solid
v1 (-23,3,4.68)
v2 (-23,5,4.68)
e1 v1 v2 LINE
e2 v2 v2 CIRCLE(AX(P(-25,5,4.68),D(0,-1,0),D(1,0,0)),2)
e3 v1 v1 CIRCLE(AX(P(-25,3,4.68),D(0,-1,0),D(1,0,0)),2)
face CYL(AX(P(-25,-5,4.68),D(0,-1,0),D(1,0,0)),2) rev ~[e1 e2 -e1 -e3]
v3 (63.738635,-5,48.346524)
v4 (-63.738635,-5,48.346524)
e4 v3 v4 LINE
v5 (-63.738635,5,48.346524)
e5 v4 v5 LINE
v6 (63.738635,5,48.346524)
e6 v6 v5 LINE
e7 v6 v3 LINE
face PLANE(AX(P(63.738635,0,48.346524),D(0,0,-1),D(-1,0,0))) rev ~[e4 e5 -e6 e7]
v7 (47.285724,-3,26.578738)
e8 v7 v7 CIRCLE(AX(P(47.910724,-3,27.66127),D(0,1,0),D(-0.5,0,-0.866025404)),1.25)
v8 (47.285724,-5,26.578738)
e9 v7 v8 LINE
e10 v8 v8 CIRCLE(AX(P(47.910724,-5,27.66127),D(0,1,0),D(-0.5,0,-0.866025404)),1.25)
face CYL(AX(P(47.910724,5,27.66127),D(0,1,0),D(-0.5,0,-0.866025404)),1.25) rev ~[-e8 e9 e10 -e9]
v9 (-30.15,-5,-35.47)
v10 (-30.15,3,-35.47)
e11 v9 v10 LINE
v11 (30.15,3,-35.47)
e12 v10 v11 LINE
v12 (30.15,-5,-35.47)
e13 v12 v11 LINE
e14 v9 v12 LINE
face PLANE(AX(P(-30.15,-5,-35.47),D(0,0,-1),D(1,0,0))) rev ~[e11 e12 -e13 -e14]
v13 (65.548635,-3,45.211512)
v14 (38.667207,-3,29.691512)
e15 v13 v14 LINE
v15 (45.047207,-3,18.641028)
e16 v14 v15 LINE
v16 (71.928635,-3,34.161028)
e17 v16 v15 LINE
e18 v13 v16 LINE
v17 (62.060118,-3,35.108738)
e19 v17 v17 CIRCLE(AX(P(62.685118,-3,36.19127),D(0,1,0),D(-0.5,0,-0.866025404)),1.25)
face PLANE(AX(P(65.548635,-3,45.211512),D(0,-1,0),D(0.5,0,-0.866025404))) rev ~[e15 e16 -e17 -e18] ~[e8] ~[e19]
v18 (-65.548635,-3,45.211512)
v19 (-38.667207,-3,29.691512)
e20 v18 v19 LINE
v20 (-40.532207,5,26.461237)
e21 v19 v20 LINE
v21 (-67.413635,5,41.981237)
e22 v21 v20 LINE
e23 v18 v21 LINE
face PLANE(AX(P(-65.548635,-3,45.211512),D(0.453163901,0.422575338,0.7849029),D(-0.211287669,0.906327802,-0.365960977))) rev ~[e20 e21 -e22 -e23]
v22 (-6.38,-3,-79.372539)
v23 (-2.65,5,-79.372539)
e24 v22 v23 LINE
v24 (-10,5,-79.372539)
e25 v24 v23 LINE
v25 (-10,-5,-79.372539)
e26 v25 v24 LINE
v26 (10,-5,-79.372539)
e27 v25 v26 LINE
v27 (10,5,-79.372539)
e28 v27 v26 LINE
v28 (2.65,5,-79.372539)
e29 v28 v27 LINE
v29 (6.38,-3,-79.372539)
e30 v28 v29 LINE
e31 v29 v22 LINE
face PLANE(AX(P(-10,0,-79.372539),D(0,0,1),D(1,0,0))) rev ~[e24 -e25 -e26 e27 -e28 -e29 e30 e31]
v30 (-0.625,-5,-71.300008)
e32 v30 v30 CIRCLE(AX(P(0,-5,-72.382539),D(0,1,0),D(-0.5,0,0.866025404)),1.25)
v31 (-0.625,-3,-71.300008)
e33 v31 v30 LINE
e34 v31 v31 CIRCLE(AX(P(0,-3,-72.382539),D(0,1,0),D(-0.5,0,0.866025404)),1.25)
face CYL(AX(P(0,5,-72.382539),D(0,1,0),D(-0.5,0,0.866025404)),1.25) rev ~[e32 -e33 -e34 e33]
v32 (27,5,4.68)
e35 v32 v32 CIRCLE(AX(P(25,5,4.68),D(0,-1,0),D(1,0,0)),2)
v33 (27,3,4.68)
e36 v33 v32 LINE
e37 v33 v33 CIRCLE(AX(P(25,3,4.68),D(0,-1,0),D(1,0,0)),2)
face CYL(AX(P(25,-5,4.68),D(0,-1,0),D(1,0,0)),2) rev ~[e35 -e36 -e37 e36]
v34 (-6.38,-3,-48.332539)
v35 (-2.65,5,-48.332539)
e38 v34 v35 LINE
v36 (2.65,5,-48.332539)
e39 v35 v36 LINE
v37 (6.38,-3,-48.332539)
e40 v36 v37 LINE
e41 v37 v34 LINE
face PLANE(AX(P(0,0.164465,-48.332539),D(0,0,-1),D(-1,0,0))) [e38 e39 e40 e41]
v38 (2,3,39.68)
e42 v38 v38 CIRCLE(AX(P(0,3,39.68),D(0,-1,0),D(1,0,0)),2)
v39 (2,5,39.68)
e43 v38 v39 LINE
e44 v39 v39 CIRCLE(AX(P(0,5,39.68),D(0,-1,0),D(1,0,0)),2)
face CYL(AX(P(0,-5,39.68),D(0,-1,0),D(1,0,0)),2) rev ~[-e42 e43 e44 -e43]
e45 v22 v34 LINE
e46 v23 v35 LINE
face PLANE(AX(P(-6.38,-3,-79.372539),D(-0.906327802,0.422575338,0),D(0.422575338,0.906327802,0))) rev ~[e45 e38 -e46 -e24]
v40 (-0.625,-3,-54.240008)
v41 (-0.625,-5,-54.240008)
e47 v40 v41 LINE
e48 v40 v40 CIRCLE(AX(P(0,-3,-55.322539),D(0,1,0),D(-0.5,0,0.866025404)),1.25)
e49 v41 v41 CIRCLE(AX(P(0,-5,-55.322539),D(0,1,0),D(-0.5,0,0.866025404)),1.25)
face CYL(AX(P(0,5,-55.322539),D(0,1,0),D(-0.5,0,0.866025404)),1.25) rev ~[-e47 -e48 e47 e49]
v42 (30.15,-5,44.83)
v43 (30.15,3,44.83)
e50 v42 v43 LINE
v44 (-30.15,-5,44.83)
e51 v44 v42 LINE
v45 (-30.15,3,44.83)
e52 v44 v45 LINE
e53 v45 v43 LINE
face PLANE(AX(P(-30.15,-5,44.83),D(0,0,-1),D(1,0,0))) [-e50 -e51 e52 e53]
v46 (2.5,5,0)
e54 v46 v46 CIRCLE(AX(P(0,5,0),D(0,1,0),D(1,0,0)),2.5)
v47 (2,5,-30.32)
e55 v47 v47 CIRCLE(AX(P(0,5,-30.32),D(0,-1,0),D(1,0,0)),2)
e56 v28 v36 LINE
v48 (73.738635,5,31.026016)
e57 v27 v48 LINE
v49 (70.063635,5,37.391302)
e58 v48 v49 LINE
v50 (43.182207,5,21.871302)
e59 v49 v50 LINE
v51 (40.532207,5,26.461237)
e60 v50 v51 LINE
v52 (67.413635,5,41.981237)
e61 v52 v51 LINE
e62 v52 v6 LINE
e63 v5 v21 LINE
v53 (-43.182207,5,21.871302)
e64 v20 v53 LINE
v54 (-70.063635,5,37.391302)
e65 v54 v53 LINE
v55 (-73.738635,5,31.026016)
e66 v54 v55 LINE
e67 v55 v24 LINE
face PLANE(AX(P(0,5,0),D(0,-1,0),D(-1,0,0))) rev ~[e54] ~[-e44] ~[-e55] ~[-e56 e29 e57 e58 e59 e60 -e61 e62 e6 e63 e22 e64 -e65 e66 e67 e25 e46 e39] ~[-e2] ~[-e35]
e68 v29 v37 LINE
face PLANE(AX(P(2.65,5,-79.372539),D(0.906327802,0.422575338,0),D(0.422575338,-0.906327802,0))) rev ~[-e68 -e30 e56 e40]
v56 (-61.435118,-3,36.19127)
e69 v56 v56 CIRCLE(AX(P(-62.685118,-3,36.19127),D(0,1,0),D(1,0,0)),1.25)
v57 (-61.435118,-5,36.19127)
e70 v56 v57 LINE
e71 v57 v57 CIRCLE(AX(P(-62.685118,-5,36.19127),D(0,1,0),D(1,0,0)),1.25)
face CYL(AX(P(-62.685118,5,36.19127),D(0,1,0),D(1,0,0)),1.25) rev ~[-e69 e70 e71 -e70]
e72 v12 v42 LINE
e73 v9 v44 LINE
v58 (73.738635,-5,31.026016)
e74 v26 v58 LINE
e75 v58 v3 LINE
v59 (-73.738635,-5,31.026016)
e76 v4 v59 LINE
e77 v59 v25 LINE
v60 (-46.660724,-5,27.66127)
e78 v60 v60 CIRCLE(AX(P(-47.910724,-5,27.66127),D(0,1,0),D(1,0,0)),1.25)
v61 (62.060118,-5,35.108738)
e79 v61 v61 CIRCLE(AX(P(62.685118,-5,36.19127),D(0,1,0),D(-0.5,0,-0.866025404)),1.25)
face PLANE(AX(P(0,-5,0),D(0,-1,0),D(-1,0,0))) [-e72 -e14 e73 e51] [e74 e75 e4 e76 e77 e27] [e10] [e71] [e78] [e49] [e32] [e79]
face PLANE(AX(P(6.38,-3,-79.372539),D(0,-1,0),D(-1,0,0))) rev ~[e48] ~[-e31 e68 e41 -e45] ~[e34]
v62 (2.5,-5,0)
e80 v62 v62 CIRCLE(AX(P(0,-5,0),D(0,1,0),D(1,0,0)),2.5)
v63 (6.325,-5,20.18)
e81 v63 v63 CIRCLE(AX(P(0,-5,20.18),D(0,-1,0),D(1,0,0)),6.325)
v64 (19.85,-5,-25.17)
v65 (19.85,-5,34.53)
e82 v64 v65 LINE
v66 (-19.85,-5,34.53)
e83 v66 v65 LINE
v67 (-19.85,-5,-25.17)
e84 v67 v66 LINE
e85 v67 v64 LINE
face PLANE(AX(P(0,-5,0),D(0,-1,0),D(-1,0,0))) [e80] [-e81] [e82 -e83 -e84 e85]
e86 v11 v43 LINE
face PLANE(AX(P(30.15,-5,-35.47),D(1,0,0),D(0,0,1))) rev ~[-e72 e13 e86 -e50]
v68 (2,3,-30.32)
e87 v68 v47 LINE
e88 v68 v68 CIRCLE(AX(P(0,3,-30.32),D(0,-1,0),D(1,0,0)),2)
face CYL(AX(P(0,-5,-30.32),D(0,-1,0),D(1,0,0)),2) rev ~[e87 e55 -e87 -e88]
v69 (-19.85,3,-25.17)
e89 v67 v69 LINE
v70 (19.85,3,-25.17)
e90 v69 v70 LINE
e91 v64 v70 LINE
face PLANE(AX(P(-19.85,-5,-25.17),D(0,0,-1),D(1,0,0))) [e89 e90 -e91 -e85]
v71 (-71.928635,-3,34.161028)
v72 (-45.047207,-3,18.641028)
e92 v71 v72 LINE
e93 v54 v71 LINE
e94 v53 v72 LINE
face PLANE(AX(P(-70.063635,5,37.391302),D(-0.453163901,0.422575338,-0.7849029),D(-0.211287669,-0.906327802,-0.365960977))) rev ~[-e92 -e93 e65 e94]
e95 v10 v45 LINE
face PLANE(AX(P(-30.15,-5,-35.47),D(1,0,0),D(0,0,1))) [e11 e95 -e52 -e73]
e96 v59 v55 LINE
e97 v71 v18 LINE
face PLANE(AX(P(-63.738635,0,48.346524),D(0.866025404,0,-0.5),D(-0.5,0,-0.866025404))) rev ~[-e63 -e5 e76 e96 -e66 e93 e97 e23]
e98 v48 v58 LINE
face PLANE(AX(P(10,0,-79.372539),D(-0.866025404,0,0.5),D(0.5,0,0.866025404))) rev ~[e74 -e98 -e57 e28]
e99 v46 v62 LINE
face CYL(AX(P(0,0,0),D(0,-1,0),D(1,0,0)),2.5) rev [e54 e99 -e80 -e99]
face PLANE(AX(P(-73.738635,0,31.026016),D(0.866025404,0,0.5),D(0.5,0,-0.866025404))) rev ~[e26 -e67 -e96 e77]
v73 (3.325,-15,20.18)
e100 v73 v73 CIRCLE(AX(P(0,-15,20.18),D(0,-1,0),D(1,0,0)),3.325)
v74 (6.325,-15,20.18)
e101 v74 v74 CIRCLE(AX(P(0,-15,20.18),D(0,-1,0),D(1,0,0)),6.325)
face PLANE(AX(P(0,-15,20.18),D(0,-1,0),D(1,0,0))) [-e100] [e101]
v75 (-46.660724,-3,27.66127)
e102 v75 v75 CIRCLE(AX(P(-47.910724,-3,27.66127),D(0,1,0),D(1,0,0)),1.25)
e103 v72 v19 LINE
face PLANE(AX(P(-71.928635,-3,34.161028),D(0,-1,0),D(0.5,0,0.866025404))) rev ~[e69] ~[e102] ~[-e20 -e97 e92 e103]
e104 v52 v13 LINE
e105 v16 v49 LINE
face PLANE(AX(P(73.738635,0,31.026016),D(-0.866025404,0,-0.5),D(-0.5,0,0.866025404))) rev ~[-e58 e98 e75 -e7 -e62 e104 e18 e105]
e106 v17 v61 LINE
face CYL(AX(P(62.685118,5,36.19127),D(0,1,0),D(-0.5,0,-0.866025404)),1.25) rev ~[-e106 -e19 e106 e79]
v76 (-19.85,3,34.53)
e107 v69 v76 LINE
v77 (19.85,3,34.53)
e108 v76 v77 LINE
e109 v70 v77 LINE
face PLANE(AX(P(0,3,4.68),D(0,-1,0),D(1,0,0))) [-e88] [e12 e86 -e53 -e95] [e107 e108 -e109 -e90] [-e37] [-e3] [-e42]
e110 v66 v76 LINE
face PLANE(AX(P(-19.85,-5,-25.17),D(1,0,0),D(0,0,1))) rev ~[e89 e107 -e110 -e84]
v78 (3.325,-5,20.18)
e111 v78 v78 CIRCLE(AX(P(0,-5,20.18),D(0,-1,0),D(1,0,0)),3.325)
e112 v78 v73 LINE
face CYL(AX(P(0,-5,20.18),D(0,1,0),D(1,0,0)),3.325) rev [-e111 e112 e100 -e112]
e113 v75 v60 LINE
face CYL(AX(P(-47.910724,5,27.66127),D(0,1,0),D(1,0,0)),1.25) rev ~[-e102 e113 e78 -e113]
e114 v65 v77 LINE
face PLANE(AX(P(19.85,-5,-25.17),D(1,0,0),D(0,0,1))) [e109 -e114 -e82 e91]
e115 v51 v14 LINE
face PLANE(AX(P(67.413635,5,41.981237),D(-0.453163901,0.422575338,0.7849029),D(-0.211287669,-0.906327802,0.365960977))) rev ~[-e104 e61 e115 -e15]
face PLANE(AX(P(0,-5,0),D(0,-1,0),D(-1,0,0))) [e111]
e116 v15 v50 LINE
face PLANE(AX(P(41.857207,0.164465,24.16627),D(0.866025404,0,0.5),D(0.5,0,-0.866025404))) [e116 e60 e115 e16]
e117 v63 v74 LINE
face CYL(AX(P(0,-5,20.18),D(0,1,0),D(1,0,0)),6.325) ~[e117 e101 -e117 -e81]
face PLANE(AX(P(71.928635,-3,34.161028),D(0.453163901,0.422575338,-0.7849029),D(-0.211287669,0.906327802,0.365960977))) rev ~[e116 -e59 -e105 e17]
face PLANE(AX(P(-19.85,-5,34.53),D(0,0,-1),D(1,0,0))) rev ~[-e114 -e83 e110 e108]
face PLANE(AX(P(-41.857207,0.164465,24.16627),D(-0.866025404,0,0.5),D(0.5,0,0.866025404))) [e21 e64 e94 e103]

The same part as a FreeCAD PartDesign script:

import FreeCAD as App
import Part
import Sketcher
from FreeCAD import Vector
Q = App.Units.Quantity

doc = App.newDocument("Part")
body = doc.addObject("PartDesign::Body", "Body")

# Sketch on XZ plane
sketch1 = doc.addObject("Sketcher::SketchObject", "Sketch")
body.addObject(sketch1)
sketch1.AttachmentSupport = (doc.XZ_Plane, [""])
sketch1.MapMode = "FlatFace"
sketch1.addGeometry(Part.LineSegment(Vector(10, -79.4, 0), Vector(-10, -79.4, 0)), False)
sketch1.addGeometry(Part.LineSegment(Vector(-10, -79.4, 0), Vector(-73.7, 31, 0)), False)
sketch1.addGeometry(Part.LineSegment(Vector(-73.7, 31, 0), Vector(-63.7, 48.3, 0)), False)
sketch1.addGeometry(Part.LineSegment(Vector(-63.7, 48.3, 0), Vector(63.7, 48.3, 0)), False)
sketch1.addGeometry(Part.LineSegment(Vector(63.7, 48.3, 0), Vector(73.7, 31, 0)), False)
sketch1.addGeometry(Part.LineSegment(Vector(73.7, 31, 0), Vector(10, -79.4, 0)), False)
sketch1.addGeometry(Part.Circle(Vector(0, 0, 0), Vector(0, 0, 1), 2.5), False)
sketch1.addConstraint(Sketcher.Constraint("Coincident", 0, 2, 1, 1))
sketch1.addConstraint(Sketcher.Constraint("Coincident", 1, 2, 2, 1))
sketch1.addConstraint(Sketcher.Constraint("Coincident", 2, 2, 3, 1))
sketch1.addConstraint(Sketcher.Constraint("Coincident", 3, 2, 4, 1))
sketch1.addConstraint(Sketcher.Constraint("Coincident", 4, 2, 5, 1))
sketch1.addConstraint(Sketcher.Constraint("Coincident", 5, 2, 0, 1))
sketch1.addConstraint(Sketcher.Constraint("Horizontal", 0))
sketch1.addConstraint(Sketcher.Constraint("Horizontal", 3))
sketch1.addConstraint(Sketcher.Constraint("Coincident", 6, 3, -1, 1))
sketch1.addConstraint(Sketcher.Constraint("Symmetric", 1, 2, 4, 2, -2))
sketch1.addConstraint(Sketcher.Constraint("Parallel", 1, 4))
sketch1.addConstraint(Sketcher.Constraint("Parallel", 2, 5))
sketch1.addConstraint(Sketcher.Constraint("Equal", 2, 4))
sketch1.addConstraint(Sketcher.Constraint("Diameter", 6, 5.0))
sketch1.addConstraint(Sketcher.Constraint("DistanceX", 0, 2, 0, 1, 20.0))
sketch1.addConstraint(Sketcher.Constraint("Angle", 1, Q("120 deg")))
sketch1.addConstraint(Sketcher.Constraint("Distance", 2, 20.0))
sketch1.addConstraint(Sketcher.Constraint("DistanceX", 3, 1, 3, 2, 127.477271))
sketch1.addConstraint(Sketcher.Constraint("DistanceY", 0, 2, -1, 1, 79.372539))
pad1 = doc.addObject("PartDesign::Pad", "Pad")
body.addObject(pad1)
pad1.Profile = sketch1
pad1.Length = 10
pad1.Midplane = True

# Sketch on XZ plane
sketch2 = doc.addObject("Sketcher::SketchObject", "Sketch001")
body.addObject(sketch2)
sketch2.AttachmentSupport = (doc.XZ_Plane, [""])
sketch2.MapMode = "FlatFace"
sketch2.AttachmentOffset = App.Placement(Vector(0, 0, -5), App.Rotation())
sketch2.addGeometry(Part.Circle(Vector(-62.7, 36.2, 0), Vector(0, 0, 1), 1.2), False)
sketch2.addGeometry(Part.Circle(Vector(-47.9, 27.7, 0), Vector(0, 0, 1), 1.2), False)
sketch2.addConstraint(Sketcher.Constraint("Equal", 0, 1))
sketch2.addConstraint(Sketcher.Constraint("Diameter", 0, 2.5))
sketch2.addConstraint(Sketcher.Constraint("DistanceY", 1, 3, 0, 3, 8.53))
sketch2.addConstraint(Sketcher.Constraint("DistanceY", -1, 1, 0, 3, 36.19127))
sketch2.addConstraint(Sketcher.Constraint("DistanceX", 0, 3, -1, 1, 62.685118))
sketch2.addConstraint(Sketcher.Constraint("DistanceX", 1, 3, -1, 1, 47.910724))
pocket1 = doc.addObject("PartDesign::Pocket", "Pocket")
body.addObject(pocket1)
pocket1.Profile = sketch2
pocket1.Type = "ThroughAll"
pocket1.Reversed = True
doc.recompute()

polarpattern = doc.addObject("PartDesign::PolarPattern", "PolarPattern")
body.addObject(polarpattern)
polarpattern.Originals = [pocket1]
polarpattern.Axis = (doc.Y_Axis, [""])
polarpattern.Angle = 360
polarpattern.Occurrences = 3
body.Tip = polarpattern

# Sketch on XZ plane
sketch3 = doc.addObject("Sketcher::SketchObject", "Sketch002")
body.addObject(sketch3)
sketch3.AttachmentSupport = (doc.XZ_Plane, [""])
sketch3.MapMode = "FlatFace"
sketch3.AttachmentOffset = App.Placement(Vector(0, 0, 5), App.Rotation())
sketch3.addGeometry(Part.Circle(Vector(0, -30.3, 0), Vector(0, 0, 1), 2), False)
sketch3.addGeometry(Part.Circle(Vector(0, 39.7, 0), Vector(0, 0, 1), 2), False)
sketch3.addGeometry(Part.Circle(Vector(25, 4.7, 0), Vector(0, 0, 1), 2), False)
sketch3.addGeometry(Part.Circle(Vector(-25, 4.7, 0), Vector(0, 0, 1), 2), False)
sketch3.addConstraint(Sketcher.Constraint("Equal", 0, 1))
sketch3.addConstraint(Sketcher.Constraint("Equal", 1, 2))
sketch3.addConstraint(Sketcher.Constraint("Equal", 2, 3))
sketch3.addConstraint(Sketcher.Constraint("Symmetric", 2, 3, 3, 3, -2))
sketch3.addConstraint(Sketcher.Constraint("PointOnObject", 0, 3, -2))
sketch3.addConstraint(Sketcher.Constraint("PointOnObject", 1, 3, -2))
sketch3.addConstraint(Sketcher.Constraint("Diameter", 0, 4.0))
sketch3.addConstraint(Sketcher.Constraint("DistanceX", -1, 1, 2, 3, 25.0))
sketch3.addConstraint(Sketcher.Constraint("DistanceY", 0, 3, 1, 3, 70.0))
sketch3.addConstraint(Sketcher.Constraint("DistanceY", 0, 3, 2, 3, 35.0))
sketch3.addConstraint(Sketcher.Constraint("DistanceY", 0, 3, -1, 1, 30.32))
pocket2 = doc.addObject("PartDesign::Pocket", "Pocket001")
body.addObject(pocket2)
pocket2.Profile = sketch3
pocket2.Type = "ThroughAll"

# Sketch on XZ plane
sketch4 = doc.addObject("Sketcher::SketchObject", "Sketch003")
body.addObject(sketch4)
sketch4.AttachmentSupport = (doc.XZ_Plane, [""])
sketch4.MapMode = "FlatFace"
sketch4.AttachmentOffset = App.Placement(Vector(0, 0, 5), App.Rotation())
sketch4.addGeometry(Part.LineSegment(Vector(-30, 45, 0), Vector(-30, -35, 0)), False)
sketch4.addGeometry(Part.LineSegment(Vector(-30, -35, 0), Vector(30, -35, 0)), False)
sketch4.addGeometry(Part.LineSegment(Vector(30, -35, 0), Vector(30, 45, 0)), False)
sketch4.addGeometry(Part.LineSegment(Vector(30, 45, 0), Vector(-30, 45, 0)), False)
sketch4.addGeometry(Part.LineSegment(Vector(20, -25, 0), Vector(-20, -25, 0)), False)
sketch4.addGeometry(Part.LineSegment(Vector(-20, -25, 0), Vector(-20, 35, 0)), False)
sketch4.addGeometry(Part.LineSegment(Vector(-20, 35, 0), Vector(20, 35, 0)), False)
sketch4.addGeometry(Part.LineSegment(Vector(20, 35, 0), Vector(20, -25, 0)), False)
sketch4.addConstraint(Sketcher.Constraint("Coincident", 0, 2, 1, 1))
sketch4.addConstraint(Sketcher.Constraint("Coincident", 1, 2, 2, 1))
sketch4.addConstraint(Sketcher.Constraint("Coincident", 2, 2, 3, 1))
sketch4.addConstraint(Sketcher.Constraint("Coincident", 3, 2, 0, 1))
sketch4.addConstraint(Sketcher.Constraint("Coincident", 4, 2, 5, 1))
sketch4.addConstraint(Sketcher.Constraint("Coincident", 5, 2, 6, 1))
sketch4.addConstraint(Sketcher.Constraint("Coincident", 6, 2, 7, 1))
sketch4.addConstraint(Sketcher.Constraint("Coincident", 7, 2, 4, 1))
sketch4.addConstraint(Sketcher.Constraint("Vertical", 0))
sketch4.addConstraint(Sketcher.Constraint("Horizontal", 1))
sketch4.addConstraint(Sketcher.Constraint("Vertical", 2))
sketch4.addConstraint(Sketcher.Constraint("Horizontal", 3))
sketch4.addConstraint(Sketcher.Constraint("Horizontal", 4))
sketch4.addConstraint(Sketcher.Constraint("Vertical", 5))
sketch4.addConstraint(Sketcher.Constraint("Horizontal", 6))
sketch4.addConstraint(Sketcher.Constraint("Vertical", 7))
sketch4.addConstraint(Sketcher.Constraint("DistanceX", 1, 1, 1, 2, 60.3))
sketch4.addConstraint(Sketcher.Constraint("DistanceX", 4, 2, 4, 1, 39.7))
sketch4.addConstraint(Sketcher.Constraint("DistanceY", 0, 2, 0, 1, 80.3))
sketch4.addConstraint(Sketcher.Constraint("DistanceY", 5, 1, 5, 2, 59.7))
sketch4.addConstraint(Sketcher.Constraint("DistanceX", 4, 2, 1, 2, 50.0))
sketch4.addConstraint(Sketcher.Constraint("DistanceY", 4, 2, 3, 2, 70.0))
sketch4.addConstraint(Sketcher.Constraint("DistanceX", 0, 2, -1, 1, 30.15))
sketch4.addConstraint(Sketcher.Constraint("DistanceY", 0, 2, -1, 1, 35.47))
pocket3 = doc.addObject("PartDesign::Pocket", "Pocket002")
body.addObject(pocket3)
pocket3.Profile = sketch4
pocket3.Length = 8

# Sketch on XZ plane
sketch5 = doc.addObject("Sketcher::SketchObject", "Sketch004")
body.addObject(sketch5)
sketch5.AttachmentSupport = (doc.XZ_Plane, [""])
sketch5.MapMode = "FlatFace"
sketch5.AttachmentOffset = App.Placement(Vector(0, 0, 5), App.Rotation())
sketch5.addGeometry(Part.Circle(Vector(0, 20.2, 0), Vector(0, 0, 1), 6.3), False)
sketch5.addGeometry(Part.Circle(Vector(0, 20.2, 0), Vector(0, 0, 1), 3.3), False)
sketch5.addConstraint(Sketcher.Constraint("Coincident", 1, 3, 0, 3))
sketch5.addConstraint(Sketcher.Constraint("PointOnObject", 0, 3, -2))
sketch5.addConstraint(Sketcher.Constraint("Diameter", 0, 12.65))
sketch5.addConstraint(Sketcher.Constraint("Diameter", 1, 6.65))
sketch5.addConstraint(Sketcher.Constraint("DistanceY", -1, 1, 0, 3, 20.18))
pad2 = doc.addObject("PartDesign::Pad", "Pad001")
body.addObject(pad2)
pad2.Profile = sketch5
pad2.Length = 10

# Sketch on an angled plane
sketch6 = doc.addObject("Sketcher::SketchObject", "Sketch005")
body.addObject(sketch6)
sketch6.Placement = App.Placement(Vector(-68.738635, 0, 39.68627), App.Rotation(Vector(0.5, 0, 0.866025404), Vector(0, 1, 0), Vector(-0.866025404, 0, 0.5), "ZXY"))
sketch6.addGeometry(Part.LineSegment(Vector(-3, 5, 0), Vector(-6, -3, 0)), False)
sketch6.addGeometry(Part.LineSegment(Vector(-6, -3, 0), Vector(6, -3, 0)), False)
sketch6.addGeometry(Part.LineSegment(Vector(6, -3, 0), Vector(3, 5, 0)), False)
sketch6.addGeometry(Part.LineSegment(Vector(3, 5, 0), Vector(-3, 5, 0)), False)
sketch6.addConstraint(Sketcher.Constraint("Coincident", 0, 2, 1, 1))
sketch6.addConstraint(Sketcher.Constraint("Coincident", 1, 2, 2, 1))
sketch6.addConstraint(Sketcher.Constraint("Coincident", 2, 2, 3, 1))
sketch6.addConstraint(Sketcher.Constraint("Coincident", 3, 2, 0, 1))
sketch6.addConstraint(Sketcher.Constraint("Horizontal", 1))
sketch6.addConstraint(Sketcher.Constraint("Horizontal", 3))
sketch6.addConstraint(Sketcher.Constraint("Equal", 0, 2))
sketch6.addConstraint(Sketcher.Constraint("DistanceX", 3, 2, 3, 1, 5.3))
sketch6.addConstraint(Sketcher.Constraint("DistanceY", 0, 2, -1, 1, 3.0))
sketch6.addConstraint(Sketcher.Constraint("DistanceY", -1, 1, 2, 2, 5.0))
sketch6.addConstraint(Sketcher.Constraint("DistanceX", 1, 1, 1, 2, 12.76))
sketch6.addConstraint(Sketcher.Constraint("DistanceX", 0, 2, -1, 1, 6.38))
pocket4 = doc.addObject("PartDesign::Pocket", "Pocket003")
body.addObject(pocket4)
pocket4.Profile = sketch6
pocket4.Length = 31.04
doc.recompute()

polarpattern2 = doc.addObject("PartDesign::PolarPattern", "PolarPattern001")
body.addObject(polarpattern2)
polarpattern2.Originals = [pocket4]
polarpattern2.Axis = (doc.Y_Axis, [""])
polarpattern2.Angle = 360
polarpattern2.Occurrences = 3
body.Tip = polarpattern2

doc.recompute()
